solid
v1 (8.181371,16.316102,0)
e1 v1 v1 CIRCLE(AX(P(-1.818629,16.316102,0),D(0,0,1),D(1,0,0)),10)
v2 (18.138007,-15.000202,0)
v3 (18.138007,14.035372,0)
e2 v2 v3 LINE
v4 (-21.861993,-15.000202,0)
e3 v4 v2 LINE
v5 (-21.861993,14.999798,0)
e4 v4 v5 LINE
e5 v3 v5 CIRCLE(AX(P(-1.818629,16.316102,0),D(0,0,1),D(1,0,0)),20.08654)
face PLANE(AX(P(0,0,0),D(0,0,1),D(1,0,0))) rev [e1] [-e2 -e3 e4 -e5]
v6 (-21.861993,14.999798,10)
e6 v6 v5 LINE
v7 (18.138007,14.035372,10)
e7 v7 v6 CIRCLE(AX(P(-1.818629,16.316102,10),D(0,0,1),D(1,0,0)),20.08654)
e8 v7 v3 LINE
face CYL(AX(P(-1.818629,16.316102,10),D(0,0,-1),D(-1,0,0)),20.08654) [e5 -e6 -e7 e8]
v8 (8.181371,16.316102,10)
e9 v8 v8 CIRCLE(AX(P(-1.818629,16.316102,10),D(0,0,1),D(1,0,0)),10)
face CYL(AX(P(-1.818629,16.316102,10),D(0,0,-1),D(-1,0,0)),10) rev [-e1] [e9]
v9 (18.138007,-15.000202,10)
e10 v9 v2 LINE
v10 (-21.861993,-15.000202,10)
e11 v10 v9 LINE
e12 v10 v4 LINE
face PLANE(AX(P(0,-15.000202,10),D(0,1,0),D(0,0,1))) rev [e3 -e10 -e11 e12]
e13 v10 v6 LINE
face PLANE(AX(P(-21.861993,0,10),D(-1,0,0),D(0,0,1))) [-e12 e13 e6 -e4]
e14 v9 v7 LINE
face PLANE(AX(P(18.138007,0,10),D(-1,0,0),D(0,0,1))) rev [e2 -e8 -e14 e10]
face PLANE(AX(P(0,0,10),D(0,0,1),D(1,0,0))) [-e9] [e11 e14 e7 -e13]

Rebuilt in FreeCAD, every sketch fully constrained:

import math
import FreeCAD as App
import Part
import Sketcher
Q = App.Units.Quantity

doc = App.newDocument("Part")
params = doc.addObject("Spreadsheet::Sheet", "Params")
for row, (alias, value) in enumerate([
    ("sketch1_diameter", "20 mm"),
    ("sketch1_width", "40 mm"),
    ("sketch1_height", "30 mm"),
    ("pad1_length", "10 mm"),
], start=1):
    params.set(f"A{row}", alias)
    params.set(f"B{row}", "=" + value)
    params.setAlias(f"B{row}", alias)

body = doc.addObject("PartDesign::Body", "Body")

# Sketch on XY plane
sketch1 = body.newObject("Sketcher::SketchObject", "Sketch")
sketch1.AttachmentSupport = (doc.getObject("XY_Plane"), [""])
sketch1.MapMode = "FlatFace"
sketch1.addGeometry([
    Part.LineSegment(App.Vector(-22, 15, 0), App.Vector(-22, -15, 0)),  # 0
    Part.LineSegment(App.Vector(-22, -15, 0), App.Vector(18, -15, 0)),  # 1
    Part.LineSegment(App.Vector(18, -15, 0), App.Vector(18, 14, 0)),  # 2
    Part.ArcOfCircle(Part.Circle(App.Vector(-2, 16, 0), App.Vector(0, 0, 1), 20), math.radians(-7), math.radians(184)),  # 3
    Part.Circle(App.Vector(-2, 16, 0), App.Vector(0, 0, 1), 10),  # 4
], False)
sketch1.addConstraint([
    Sketcher.Constraint("Coincident", 0, 2, 1, 1),
    Sketcher.Constraint("Coincident", 1, 2, 2, 1),
    Sketcher.Constraint("Coincident", 2, 2, 3, 1),
    Sketcher.Constraint("Coincident", 3, 2, 0, 1),
    Sketcher.Constraint("Vertical", 0),
    Sketcher.Constraint("Horizontal", 1),
    Sketcher.Constraint("Vertical", 2),
    Sketcher.Constraint("Coincident", 4, 3, 3, 3),
    Sketcher.Constraint("Diameter", 4, Q("20 mm")),
    Sketcher.Constraint("DistanceX", 1, 1, 1, 2, Q("40 mm")),
    Sketcher.Constraint("DistanceY", 0, 2, 0, 1, Q("30 mm")),
    Sketcher.Constraint("Radius", 3, Q("20.08654 mm")),
    Sketcher.Constraint("DistanceY", -1, 1, 3, 3, Q("16.316102 mm")),
    Sketcher.Constraint("DistanceY", 0, 2, -1, 1, Q("15.000202 mm")),
    Sketcher.Constraint("DistanceX", 3, 3, -1, 1, Q("1.818629 mm")),
])
sketch1.setExpression("Constraints[8]", "Params.sketch1_diameter")
sketch1.setExpression("Constraints[9]", "Params.sketch1_width")
sketch1.setExpression("Constraints[10]", "Params.sketch1_height")
pad1 = body.newObject("PartDesign::Pad", "Pad")
pad1.Profile = sketch1
pad1.setExpression("Length", "Params.pad1_length")

doc.recompute()
